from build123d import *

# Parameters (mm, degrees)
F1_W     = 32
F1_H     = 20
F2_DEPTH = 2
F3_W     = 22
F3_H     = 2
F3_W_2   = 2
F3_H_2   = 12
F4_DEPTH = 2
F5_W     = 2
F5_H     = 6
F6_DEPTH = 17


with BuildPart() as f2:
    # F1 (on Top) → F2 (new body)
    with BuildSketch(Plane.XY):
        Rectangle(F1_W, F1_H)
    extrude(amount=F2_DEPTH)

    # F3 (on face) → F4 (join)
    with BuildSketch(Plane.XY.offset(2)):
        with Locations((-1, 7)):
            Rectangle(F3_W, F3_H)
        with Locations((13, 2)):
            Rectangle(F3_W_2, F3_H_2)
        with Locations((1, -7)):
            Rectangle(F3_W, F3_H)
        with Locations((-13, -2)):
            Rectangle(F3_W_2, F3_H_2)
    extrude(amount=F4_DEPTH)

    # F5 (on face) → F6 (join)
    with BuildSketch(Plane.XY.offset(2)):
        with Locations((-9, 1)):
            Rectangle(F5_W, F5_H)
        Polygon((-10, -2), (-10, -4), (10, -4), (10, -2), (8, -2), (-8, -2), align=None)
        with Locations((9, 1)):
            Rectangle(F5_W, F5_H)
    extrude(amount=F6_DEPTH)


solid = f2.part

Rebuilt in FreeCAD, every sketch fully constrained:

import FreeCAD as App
import Part
import Sketcher
from FreeCAD import Vector


def add_polygon(sketch, points):
    """Adds a closed chain of lines whose ends are joined by coincident constraints."""
    first, n = sketch.GeometryCount, len(points)
    for a, b in zip(points, points[1:] + points[:1]):
        sketch.addGeometry(Part.LineSegment(App.Vector(*a, 0), App.Vector(*b, 0)), False)
    for i in range(n):
        sketch.addConstraint(Sketcher.Constraint("Coincident", first + i, 2, first + (i + 1) % n, 1))

doc = App.newDocument("Part")
body = doc.addObject("PartDesign::Body", "Body")

# Sketch on XY plane
sketch1 = body.newObject("Sketcher::SketchObject", "Sketch")
sketch1.AttachmentSupport = (doc.getObject("XY_Plane"), [""])
sketch1.MapMode = "FlatFace"
add_polygon(sketch1, [(-16, 10), (-16, -10), (16, -10), (16, 10)])  # lines 0-3
sketch1.addConstraint([
    Sketcher.Constraint("Vertical", 0),
    Sketcher.Constraint("Horizontal", 1),
    Sketcher.Constraint("Vertical", 2),
    Sketcher.Constraint("Horizontal", 3),
    Sketcher.Constraint("Symmetric", 0, 2, 2, 2, -1, 1),
    Sketcher.Constraint("DistanceX", 1, 1, 1, 2, 32.0),
    Sketcher.Constraint("DistanceY", 0, 2, 0, 1, 20.0),
])
pad1 = body.newObject("PartDesign::Pad", "Pad")
pad1.Profile = sketch1
pad1.Length = 2

# Sketch on XY plane
sketch2 = body.newObject("Sketcher::SketchObject", "Sketch001")
sketch2.AttachmentSupport = (doc.getObject("XY_Plane"), [""])
sketch2.MapMode = "FlatFace"
sketch2.AttachmentOffset = App.Placement(Vector(0, 0, 2), App.Rotation())
add_polygon(sketch2, [(-12, 8), (-12, 6), (10, 6), (10, 8)])  # lines 0-3
add_polygon(sketch2, [(12, 8), (12, -4), (14, -4), (14, 8)])  # lines 4-7
add_polygon(sketch2, [(-10, -6), (-10, -8), (12, -8), (12, -6)])  # lines 8-11
add_polygon(sketch2, [(-14, 4), (-14, -8), (-12, -8), (-12, 4)])  # lines 12-15
sketch2.addConstraint([
    Sketcher.Constraint("Vertical", 0),
    Sketcher.Constraint("Horizontal", 1),
    Sketcher.Constraint("Vertical", 2),
    Sketcher.Constraint("Horizontal", 3),
    Sketcher.Constraint("Vertical", 4),
    Sketcher.Constraint("Horizontal", 5),
    Sketcher.Constraint("Vertical", 6),
    Sketcher.Constraint("Horizontal", 7),
    Sketcher.Constraint("Vertical", 8),
    Sketcher.Constraint("Horizontal", 9),
    Sketcher.Constraint("Vertical", 10),
    Sketcher.Constraint("Horizontal", 11),
    Sketcher.Constraint("Vertical", 12),
    Sketcher.Constraint("Horizontal", 13),
    Sketcher.Constraint("Vertical", 14),
    Sketcher.Constraint("Horizontal", 15),
    Sketcher.Constraint("Symmetric", 2, 2, 8, 2, -1, 1),
    Sketcher.Constraint("Symmetric", 0, 2, 10, 2, -1, 1),
    Sketcher.Constraint("Symmetric", 6, 2, 12, 2, -1, 1),
    Sketcher.Constraint("Symmetric", 4, 2, 14, 2, -1, 1),
    Sketcher.Constraint("Symmetric", 3, 2, 7, 2, -2),
    Sketcher.Constraint("Equal", 15, 0),
    Sketcher.Constraint("DistanceX", 1, 1, 1, 2, 22.0),
    Sketcher.Constraint("DistanceX", 5, 1, 5, 2, 2.0),
    Sketcher.Constraint("DistanceY", 4, 2, 4, 1, 12.0),
    Sketcher.Constraint("DistanceX", 0, 2, -1, 1, 12.0),
    Sketcher.Constraint("DistanceY", -1, 1, 0, 2, 6.0),
])
pad2 = body.newObject("PartDesign::Pad", "Pad001")
pad2.Profile = sketch2
pad2.Length = 2

# Sketch on XY plane
sketch3 = body.newObject("Sketcher::SketchObject", "Sketch002")
sketch3.AttachmentSupport = (doc.getObject("XY_Plane"), [""])
sketch3.MapMode = "FlatFace"
sketch3.AttachmentOffset = App.Placement(Vector(0, 0, 2), App.Rotation())
add_polygon(sketch3, [(-10, 4), (-10, -4), (10, -4), (10, 4), (8, 4), (8, -2), (-8, -2), (-8, 4)])  # lines 0-7
sketch3.addConstraint([
    Sketcher.Constraint("Vertical", 0),
    Sketcher.Constraint("Horizontal", 1),
    Sketcher.Constraint("Vertical", 2),
    Sketcher.Constraint("Horizontal", 3),
    Sketcher.Constraint("Vertical", 4),
    Sketcher.Constraint("Horizontal", 5),
    Sketcher.Constraint("Vertical", 6),
    Sketcher.Constraint("Horizontal", 7),
    Sketcher.Constraint("Symmetric", 0, 2, 2, 2, -1, 1),
    Sketcher.Constraint("Symmetric", 3, 2, 6, 2, -2),
    Sketcher.Constraint("DistanceX", 1, 1, 1, 2, 20.0),
    Sketcher.Constraint("DistanceX", 3, 2, 3, 1, 2.0),
    Sketcher.Constraint("DistanceY", 0, 2, 0, 1, 8.0),
    Sketcher.Constraint("DistanceY", 4, 2, 4, 1, 6.0),
])
pad3 = body.newObject("PartDesign::Pad", "Pad002")
pad3.Profile = sketch3
pad3.Length = 17

doc.recompute()
